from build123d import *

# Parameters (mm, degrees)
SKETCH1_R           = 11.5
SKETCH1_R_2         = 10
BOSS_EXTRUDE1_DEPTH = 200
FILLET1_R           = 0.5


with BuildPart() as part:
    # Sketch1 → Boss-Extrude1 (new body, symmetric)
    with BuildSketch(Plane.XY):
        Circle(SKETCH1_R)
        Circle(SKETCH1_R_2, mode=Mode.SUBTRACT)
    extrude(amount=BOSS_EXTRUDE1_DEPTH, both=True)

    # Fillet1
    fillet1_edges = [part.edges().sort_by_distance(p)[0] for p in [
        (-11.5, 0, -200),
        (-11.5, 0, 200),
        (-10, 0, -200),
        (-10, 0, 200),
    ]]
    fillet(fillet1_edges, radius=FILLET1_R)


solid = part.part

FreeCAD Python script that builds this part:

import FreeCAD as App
import Part
import Sketcher
Q = App.Units.Quantity


def edges_at(feature, points):
    """Names of the edges that pass closest to the given points."""
    edges = feature.Shape.Edges
    near = lambda p: min(range(len(edges)), key=lambda i: edges[i].distToShape(Part.Vertex(*p))[0])
    return sorted({f"Edge{near(p) + 1}" for p in points})

doc = App.newDocument("Part")
params = doc.addObject("Spreadsheet::Sheet", "Params")
for row, (alias, value) in enumerate([
    ("sketch1_diameter", "23 mm"),
    ("sketch1_diameter2", "20 mm"),
    ("pad1_length", "400 mm"),
    ("fillet_radius", "0.5 mm"),
], start=1):
    params.set(f"A{row}", alias)
    params.set(f"B{row}", "=" + value)
    params.setAlias(f"B{row}", alias)

body = doc.addObject("PartDesign::Body", "Body")

sketch1 = body.newObject("Sketcher::SketchObject", "Sketch")
sketch1.AttachmentSupport = (doc.getObject("XY_Plane"), [""])
sketch1.MapMode = "FlatFace"
sketch1.addGeometry([
    Part.Circle(App.Vector(0, 0, 0), App.Vector(0, 0, 1), 12),
    Part.Circle(App.Vector(0, 0, 0), App.Vector(0, 0, 1), 10),
], False)
sketch1.addConstraint([
    Sketcher.Constraint("Coincident", 0, 3, -1, 1),
    Sketcher.Constraint("Coincident", 1, 3, -1, 1),
    Sketcher.Constraint("Diameter", 0, Q("23 mm")),
    Sketcher.Constraint("Diameter", 1, Q("20 mm")),
])
sketch1.setExpression("Constraints[2]", "Params.sketch1_diameter")
sketch1.setExpression("Constraints[3]", "Params.sketch1_diameter2")
pad1 = body.newObject("PartDesign::Pad", "Pad")
pad1.Profile = sketch1
pad1.setExpression("Length", "Params.pad1_length")
pad1.Midplane = True
doc.recompute()

fillet = body.newObject("PartDesign::Fillet", "Fillet")
fillet.Base = (pad1, edges_at(pad1, [
    (-11.5, 0, -200),
    (-11.5, 0, 200),
    (-10, 0, -200),
    (-10, 0, 200),
]))
fillet.setExpression("Radius", "Params.fillet_radius")

doc.recompute()
